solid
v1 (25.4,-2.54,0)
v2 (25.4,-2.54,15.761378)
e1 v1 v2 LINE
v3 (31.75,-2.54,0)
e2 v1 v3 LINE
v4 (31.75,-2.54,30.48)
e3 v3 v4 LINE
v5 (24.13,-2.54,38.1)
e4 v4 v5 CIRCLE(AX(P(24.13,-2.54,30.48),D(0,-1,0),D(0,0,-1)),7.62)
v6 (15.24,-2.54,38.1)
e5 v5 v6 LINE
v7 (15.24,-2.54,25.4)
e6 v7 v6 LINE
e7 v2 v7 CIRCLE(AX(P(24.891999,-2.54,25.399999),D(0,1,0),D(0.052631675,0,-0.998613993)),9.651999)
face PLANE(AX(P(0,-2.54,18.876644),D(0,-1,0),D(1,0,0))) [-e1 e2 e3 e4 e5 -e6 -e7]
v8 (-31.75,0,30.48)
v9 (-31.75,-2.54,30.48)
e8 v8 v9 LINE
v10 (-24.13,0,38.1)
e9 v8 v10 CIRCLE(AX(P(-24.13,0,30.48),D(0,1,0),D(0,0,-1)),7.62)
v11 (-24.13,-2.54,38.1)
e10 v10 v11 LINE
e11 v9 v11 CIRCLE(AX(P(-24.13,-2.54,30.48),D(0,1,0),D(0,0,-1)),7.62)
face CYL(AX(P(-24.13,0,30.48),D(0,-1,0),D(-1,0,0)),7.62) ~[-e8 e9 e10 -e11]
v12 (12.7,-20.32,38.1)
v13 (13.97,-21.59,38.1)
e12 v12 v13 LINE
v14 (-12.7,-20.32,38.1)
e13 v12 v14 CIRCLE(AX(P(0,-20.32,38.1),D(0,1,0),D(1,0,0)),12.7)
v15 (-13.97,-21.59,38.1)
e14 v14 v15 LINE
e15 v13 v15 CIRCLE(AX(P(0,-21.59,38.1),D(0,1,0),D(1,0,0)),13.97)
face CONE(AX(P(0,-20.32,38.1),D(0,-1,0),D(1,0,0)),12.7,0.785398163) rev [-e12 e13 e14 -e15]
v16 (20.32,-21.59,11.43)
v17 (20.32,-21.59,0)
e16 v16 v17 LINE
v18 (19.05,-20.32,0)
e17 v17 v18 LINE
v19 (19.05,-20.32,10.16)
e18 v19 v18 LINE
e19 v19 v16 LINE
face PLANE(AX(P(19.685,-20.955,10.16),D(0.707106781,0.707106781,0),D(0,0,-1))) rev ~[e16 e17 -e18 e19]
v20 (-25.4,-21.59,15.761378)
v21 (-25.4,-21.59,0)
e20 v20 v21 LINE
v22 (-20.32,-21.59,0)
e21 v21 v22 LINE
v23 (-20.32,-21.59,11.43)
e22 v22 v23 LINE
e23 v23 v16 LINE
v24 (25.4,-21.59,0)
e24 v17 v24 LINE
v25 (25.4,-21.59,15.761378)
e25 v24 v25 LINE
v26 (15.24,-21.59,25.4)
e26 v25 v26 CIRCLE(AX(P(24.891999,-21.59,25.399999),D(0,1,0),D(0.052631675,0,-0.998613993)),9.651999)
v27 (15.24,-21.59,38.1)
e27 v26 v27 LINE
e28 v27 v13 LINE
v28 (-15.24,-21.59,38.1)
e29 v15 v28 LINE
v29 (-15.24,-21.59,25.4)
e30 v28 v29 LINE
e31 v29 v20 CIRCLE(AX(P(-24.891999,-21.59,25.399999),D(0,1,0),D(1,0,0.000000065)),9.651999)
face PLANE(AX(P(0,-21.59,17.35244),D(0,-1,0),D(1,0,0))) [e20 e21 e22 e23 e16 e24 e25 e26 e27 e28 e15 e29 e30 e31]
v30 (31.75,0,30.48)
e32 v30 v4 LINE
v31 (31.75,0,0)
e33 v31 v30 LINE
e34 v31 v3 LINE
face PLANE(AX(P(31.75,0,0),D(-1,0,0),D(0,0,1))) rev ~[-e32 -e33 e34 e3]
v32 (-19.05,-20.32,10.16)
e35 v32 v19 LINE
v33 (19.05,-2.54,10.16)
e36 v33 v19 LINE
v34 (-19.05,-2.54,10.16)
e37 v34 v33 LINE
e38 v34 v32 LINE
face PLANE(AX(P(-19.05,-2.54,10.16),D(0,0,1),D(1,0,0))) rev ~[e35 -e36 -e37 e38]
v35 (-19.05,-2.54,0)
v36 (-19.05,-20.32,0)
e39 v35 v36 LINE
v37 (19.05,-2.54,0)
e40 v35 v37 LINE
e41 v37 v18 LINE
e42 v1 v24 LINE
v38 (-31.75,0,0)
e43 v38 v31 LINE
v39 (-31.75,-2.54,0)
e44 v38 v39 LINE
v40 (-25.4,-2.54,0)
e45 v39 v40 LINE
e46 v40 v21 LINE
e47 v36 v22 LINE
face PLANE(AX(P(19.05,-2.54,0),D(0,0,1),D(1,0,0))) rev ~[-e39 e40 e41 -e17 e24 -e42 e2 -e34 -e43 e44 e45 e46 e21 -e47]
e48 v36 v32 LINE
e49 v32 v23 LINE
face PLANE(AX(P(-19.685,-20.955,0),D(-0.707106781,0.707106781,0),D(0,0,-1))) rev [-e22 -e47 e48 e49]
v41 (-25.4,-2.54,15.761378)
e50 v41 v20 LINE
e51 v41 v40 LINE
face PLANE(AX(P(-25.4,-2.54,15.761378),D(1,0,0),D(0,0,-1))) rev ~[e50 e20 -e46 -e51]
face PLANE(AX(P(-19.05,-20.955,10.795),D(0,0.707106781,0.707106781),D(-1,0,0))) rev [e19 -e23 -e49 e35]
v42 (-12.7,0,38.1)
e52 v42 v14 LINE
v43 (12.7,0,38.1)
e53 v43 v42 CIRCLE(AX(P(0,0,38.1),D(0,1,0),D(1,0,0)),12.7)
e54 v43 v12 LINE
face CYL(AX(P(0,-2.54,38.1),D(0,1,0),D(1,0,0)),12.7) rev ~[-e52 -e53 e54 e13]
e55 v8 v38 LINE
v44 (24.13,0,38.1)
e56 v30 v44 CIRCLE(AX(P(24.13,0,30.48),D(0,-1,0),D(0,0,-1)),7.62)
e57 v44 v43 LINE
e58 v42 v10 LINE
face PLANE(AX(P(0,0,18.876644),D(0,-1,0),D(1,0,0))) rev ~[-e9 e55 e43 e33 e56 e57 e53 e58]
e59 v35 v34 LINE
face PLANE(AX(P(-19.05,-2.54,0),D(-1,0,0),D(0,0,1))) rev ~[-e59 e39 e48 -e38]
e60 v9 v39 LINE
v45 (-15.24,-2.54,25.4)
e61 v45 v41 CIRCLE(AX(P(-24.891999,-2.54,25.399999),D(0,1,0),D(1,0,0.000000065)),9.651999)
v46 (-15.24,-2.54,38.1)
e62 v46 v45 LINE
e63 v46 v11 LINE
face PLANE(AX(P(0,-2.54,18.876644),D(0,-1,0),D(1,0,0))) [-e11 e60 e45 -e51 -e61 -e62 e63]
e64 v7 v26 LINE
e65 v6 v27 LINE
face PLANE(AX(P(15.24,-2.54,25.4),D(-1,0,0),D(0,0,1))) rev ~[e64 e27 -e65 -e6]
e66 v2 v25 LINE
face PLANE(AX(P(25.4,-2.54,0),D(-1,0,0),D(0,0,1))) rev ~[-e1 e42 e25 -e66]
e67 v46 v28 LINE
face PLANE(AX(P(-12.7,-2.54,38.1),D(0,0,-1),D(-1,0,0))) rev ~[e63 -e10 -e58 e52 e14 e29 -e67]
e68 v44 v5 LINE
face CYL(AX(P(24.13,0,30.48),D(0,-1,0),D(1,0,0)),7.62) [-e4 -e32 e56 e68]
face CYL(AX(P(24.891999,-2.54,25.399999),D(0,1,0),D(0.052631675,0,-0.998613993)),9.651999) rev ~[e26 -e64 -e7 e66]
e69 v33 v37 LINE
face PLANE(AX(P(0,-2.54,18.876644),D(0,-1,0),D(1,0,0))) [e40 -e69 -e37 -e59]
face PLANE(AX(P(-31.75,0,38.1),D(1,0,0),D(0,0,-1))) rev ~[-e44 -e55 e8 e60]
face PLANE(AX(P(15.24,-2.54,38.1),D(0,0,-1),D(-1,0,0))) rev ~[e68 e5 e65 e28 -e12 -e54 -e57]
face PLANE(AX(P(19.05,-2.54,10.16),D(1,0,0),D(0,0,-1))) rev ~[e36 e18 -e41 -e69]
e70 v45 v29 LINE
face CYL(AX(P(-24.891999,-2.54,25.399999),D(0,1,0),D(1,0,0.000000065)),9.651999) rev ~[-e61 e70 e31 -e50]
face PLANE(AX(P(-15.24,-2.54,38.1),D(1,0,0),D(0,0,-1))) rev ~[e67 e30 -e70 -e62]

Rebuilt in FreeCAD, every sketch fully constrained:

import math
import FreeCAD as App
import Part
import Sketcher

V = App.Vector
Q = App.Units.Quantity


def edges_at(feature, points):
    """Names of the edges that pass closest to the given points."""
    edges = feature.Shape.Edges
    near = lambda p: min(range(len(edges)), key=lambda i: edges[i].distToShape(Part.Vertex(*p))[0])
    return sorted({f"Edge{near(p) + 1}" for p in points})

doc = App.newDocument("Part")
body = doc.addObject("PartDesign::Body", "Body")

# Sketch on XZ plane
sketch1 = body.newObject("Sketcher::SketchObject", "Sketch")
sketch1.AttachmentSupport = (doc.getObject("XZ_Plane"), [""])
sketch1.MapMode = "FlatFace"
sketch1.addGeometry([
    Part.LineSegment(V(-31.75, 38.1, 0), V(-31.75, 0, 0)),  # 0
    Part.LineSegment(V(-31.75, 0, 0), V(31.75, 0, 0)),  # 1
    Part.LineSegment(V(31.75, 0, 0), V(31.75, 38.1, 0)),  # 2
    Part.LineSegment(V(31.75, 38.1, 0), V(12.7, 38.1, 0)),  # 3
    Part.ArcOfCircle(Part.Circle(V(0, 38.1, 0), V(0, 0, 1), 12.7), math.radians(180), math.radians(360)),  # 4
    Part.LineSegment(V(-12.7, 38.1, 0), V(-31.75, 38.1, 0)),  # 5
], False)
sketch1.addConstraint([
    Sketcher.Constraint("Coincident", 0, 2, 1, 1),
    Sketcher.Constraint("Coincident", 1, 2, 2, 1),
    Sketcher.Constraint("Coincident", 2, 2, 3, 1),
    Sketcher.Constraint("Coincident", 3, 2, 4, 2),
    Sketcher.Constraint("Coincident", 4, 1, 5, 1),
    Sketcher.Constraint("Coincident", 5, 2, 0, 1),
    Sketcher.Constraint("Vertical", 0),
    Sketcher.Constraint("Horizontal", 1),
    Sketcher.Constraint("Vertical", 2),
    Sketcher.Constraint("Horizontal", 3),
    Sketcher.Constraint("Horizontal", 5),
    Sketcher.Constraint("Symmetric", 0, 2, 1, 2, -1, 1),
    Sketcher.Constraint("Symmetric", 3, 2, 4, 1, -2),
    Sketcher.Constraint("Horizontal", 4, 3, 2, 2),
    Sketcher.Constraint("Radius", 4, Q("0.5 in")),
    Sketcher.Constraint("DistanceX", 1, 1, 1, 2, Q("2.5 in")),
    Sketcher.Constraint("DistanceY", 0, 2, 0, 1, Q("1.5 in")),
])
pad1 = body.newObject("PartDesign::Pad", "Pad")
pad1.Profile = sketch1
pad1.Length = Q("0.1 in")

# Sketch on XZ plane
sketch2 = body.newObject("Sketcher::SketchObject", "Sketch001")
sketch2.AttachmentSupport = (doc.getObject("XZ_Plane"), [""])
sketch2.MapMode = "FlatFace"
sketch2.AttachmentOffset = App.Placement(V(0, 0, 0.1 * 25.4), App.Rotation())
sketch2.addGeometry([
    Part.LineSegment(V(19.05, 0, 0), V(25.4, 0, 0)),  # 0
    Part.LineSegment(V(25.4, 0, 0), V(25.4, 15.761378, 0)),  # 1
    Part.ArcOfCircle(Part.Circle(V(24.891999, 25.399999, 0), V(0, 0, 1), 9.651999), math.radians(179.999996), math.radians(273.016967)),  # 2
    Part.LineSegment(V(15.24, 25.4, 0), V(15.24, 38.1, 0)),  # 3
    Part.LineSegment(V(15.24, 38.1, 0), V(12.7, 38.1, 0)),  # 4
    Part.ArcOfCircle(Part.Circle(V(0, 38.1, 0), V(0, 0, 1), 12.7), math.radians(180), math.radians(360)),  # 5
    Part.LineSegment(V(-12.7, 38.1, 0), V(-15.24, 38.1, 0)),  # 6
    Part.LineSegment(V(-15.24, 38.1, 0), V(-15.24, 25.4, 0)),  # 7
    Part.ArcOfCircle(Part.Circle(V(-24.891999, 25.399999, 0), V(0, 0, 1), 9.651999), math.radians(-93.016967), math.radians(0.000004)),  # 8
    Part.LineSegment(V(-25.4, 15.761378, 0), V(-25.4, 0, 0)),  # 9
    Part.LineSegment(V(-25.4, 0, 0), V(-19.05, 0, 0)),  # 10
    Part.LineSegment(V(-19.05, 0, 0), V(-19.05, 10.16, 0)),  # 11
    Part.LineSegment(V(-19.05, 10.16, 0), V(19.05, 10.16, 0)),  # 12
    Part.LineSegment(V(19.05, 10.16, 0), V(19.05, 0, 0)),  # 13
], False)
sketch2.addConstraint([
    Sketcher.Constraint("Coincident", 0, 2, 1, 1),
    Sketcher.Constraint("Coincident", 1, 2, 2, 2),
    Sketcher.Constraint("Tangent", 2, 1, 3, 1),
    Sketcher.Constraint("Coincident", 3, 2, 4, 1),
    Sketcher.Constraint("Coincident", 4, 2, 5, 2),
    Sketcher.Constraint("Coincident", 5, 1, 6, 1),
    Sketcher.Constraint("Coincident", 6, 2, 7, 1),
    Sketcher.Constraint("Tangent", 7, 2, 8, 2),
    Sketcher.Constraint("Coincident", 8, 1, 9, 1),
    Sketcher.Constraint("Coincident", 9, 2, 10, 1),
    Sketcher.Constraint("Coincident", 10, 2, 11, 1),
    Sketcher.Constraint("Coincident", 11, 2, 12, 1),
    Sketcher.Constraint("Coincident", 12, 2, 13, 1),
    Sketcher.Constraint("Coincident", 13, 2, 0, 1),
    Sketcher.Constraint("Horizontal", 0),
    Sketcher.Constraint("Vertical", 1),
    Sketcher.Constraint("Vertical", 3),
    Sketcher.Constraint("Horizontal", 4),
    Sketcher.Constraint("Horizontal", 6),
    Sketcher.Constraint("Vertical", 7),
    Sketcher.Constraint("Vertical", 9),
    Sketcher.Constraint("Horizontal", 10),
    Sketcher.Constraint("Vertical", 11),
    Sketcher.Constraint("Horizontal", 12),
    Sketcher.Constraint("Vertical", 13),
    Sketcher.Constraint("Equal", 2, 8),
    Sketcher.Constraint("Symmetric", 0, 2, 9, 2, -1, 1),
    Sketcher.Constraint("Symmetric", 2, 3, 8, 3, -2),
    Sketcher.Constraint("Symmetric", 4, 2, 5, 1, -2),
    Sketcher.Constraint("Symmetric", 10, 2, 13, 2, -2),
    Sketcher.Constraint("Horizontal", 5, 3, 3, 2),
    Sketcher.Constraint("Radius", 5, Q("0.5 in")),
    Sketcher.Constraint("Radius", 2, Q("0.38 in")),
    Sketcher.Constraint("DistanceX", 4, 2, 4, 1, Q("0.1 in")),
    Sketcher.Constraint("DistanceX", 12, 1, 12, 2, Q("1.5 in")),
    Sketcher.Constraint("DistanceY", 3, 1, 3, 2, Q("0.5 in")),
    Sketcher.Constraint("DistanceY", 11, 1, 11, 2, Q("0.4 in")),
    Sketcher.Constraint("DistanceY", -1, 1, 2, 3, Q("1 in")),
    Sketcher.Constraint("DistanceX", -1, 1, 0, 2, Q("1 in")),
])
pad2 = body.newObject("PartDesign::Pad", "Pad001")
pad2.Profile = sketch2
pad2.Length = Q("0.75 in")
doc.recompute()

chamfer = body.newObject("PartDesign::Chamfer", "Chamfer")
chamfer.Base = (pad2, edges_at(pad2, [
    (0, -21.59, 10.16),
    (-19.05, -21.59, 5.08),
    (19.05, -21.59, 5.08),
    (0, -21.59, 25.4),
]))
chamfer.Size = Q("0.05 in")
doc.recompute()

fillet = body.newObject("PartDesign::Fillet", "Fillet")
fillet.Base = (chamfer, edges_at(chamfer, [(-31.75, -1.27, 38.1), (31.75, -1.27, 38.1)]))
fillet.Radius = Q("0.3 in")

doc.recompute()
